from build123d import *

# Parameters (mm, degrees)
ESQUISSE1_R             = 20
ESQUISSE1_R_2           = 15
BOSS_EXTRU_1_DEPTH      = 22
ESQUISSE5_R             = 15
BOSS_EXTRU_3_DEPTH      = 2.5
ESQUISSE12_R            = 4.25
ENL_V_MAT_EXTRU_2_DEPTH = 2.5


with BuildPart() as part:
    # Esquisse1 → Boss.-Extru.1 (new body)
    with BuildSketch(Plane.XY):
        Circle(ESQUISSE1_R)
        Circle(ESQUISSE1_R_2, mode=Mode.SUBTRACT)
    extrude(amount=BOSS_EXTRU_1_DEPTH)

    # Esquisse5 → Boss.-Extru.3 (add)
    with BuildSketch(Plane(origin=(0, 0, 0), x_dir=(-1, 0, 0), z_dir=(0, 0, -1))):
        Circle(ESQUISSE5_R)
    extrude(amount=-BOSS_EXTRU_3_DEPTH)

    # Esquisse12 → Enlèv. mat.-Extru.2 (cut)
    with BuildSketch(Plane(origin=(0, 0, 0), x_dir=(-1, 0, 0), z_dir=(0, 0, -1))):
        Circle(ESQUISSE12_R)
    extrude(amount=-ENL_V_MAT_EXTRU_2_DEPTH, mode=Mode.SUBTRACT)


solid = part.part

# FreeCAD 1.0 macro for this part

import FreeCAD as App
import Part
import Sketcher
from FreeCAD import Vector
Q = App.Units.Quantity

doc = App.newDocument("Part")
body = doc.addObject("PartDesign::Body", "Body")

# Sketch on XY plane
sketch1 = body.newObject("Sketcher::SketchObject", "Sketch")
sketch1.AttachmentSupport = (doc.getObject("XY_Plane"), [""])
sketch1.MapMode = "FlatFace"
sketch1.addGeometry([
    Part.Circle(Vector(0, 0, 0), Vector(0, 0, 1), 20),
    Part.Circle(Vector(0, 0, 0), Vector(0, 0, 1), 15),
], False)
sketch1.addConstraint([
    Sketcher.Constraint("Coincident", 0, 3, -1, 1),
    Sketcher.Constraint("Coincident", 1, 3, -1, 1),
    Sketcher.Constraint("Diameter", 0, Q("40 mm")),
    Sketcher.Constraint("Diameter", 1, Q("30 mm")),
])
pad1 = body.newObject("PartDesign::Pad", "Pad")
pad1.Profile = sketch1
pad1.Length = 22

# Sketch on XY plane
sketch2 = body.newObject("Sketcher::SketchObject", "Sketch001")
sketch2.AttachmentSupport = (doc.getObject("XY_Plane"), [""])
sketch2.MapMode = "FlatFace"
sketch2.addGeometry(Part.Circle(Vector(0, 0, 0), Vector(0, 0, 1), 15), False)
sketch2.addConstraint([
    Sketcher.Constraint("Coincident", 0, 3, -1, 1),
    Sketcher.Constraint("Diameter", 0, Q("30 mm")),
])
pad2 = body.newObject("PartDesign::Pad", "Pad001")
pad2.Profile = sketch2
pad2.Length = 2.5

# Sketch on XY plane
sketch3 = body.newObject("Sketcher::SketchObject", "Sketch002")
sketch3.AttachmentSupport = (doc.getObject("XY_Plane"), [""])
sketch3.MapMode = "FlatFace"
sketch3.addGeometry(Part.Circle(Vector(0, 0, 0), Vector(0, 0, 1), 4.25), False)
sketch3.addConstraint([
    Sketcher.Constraint("Coincident", 0, 3, -1, 1),
    Sketcher.Constraint("Diameter", 0, Q("8.5 mm")),
])
pocket1 = body.newObject("PartDesign::Pocket", "Pocket")
pocket1.Profile = sketch3
pocket1.Length = 2.5
pocket1.Reversed = True

doc.recompute()
